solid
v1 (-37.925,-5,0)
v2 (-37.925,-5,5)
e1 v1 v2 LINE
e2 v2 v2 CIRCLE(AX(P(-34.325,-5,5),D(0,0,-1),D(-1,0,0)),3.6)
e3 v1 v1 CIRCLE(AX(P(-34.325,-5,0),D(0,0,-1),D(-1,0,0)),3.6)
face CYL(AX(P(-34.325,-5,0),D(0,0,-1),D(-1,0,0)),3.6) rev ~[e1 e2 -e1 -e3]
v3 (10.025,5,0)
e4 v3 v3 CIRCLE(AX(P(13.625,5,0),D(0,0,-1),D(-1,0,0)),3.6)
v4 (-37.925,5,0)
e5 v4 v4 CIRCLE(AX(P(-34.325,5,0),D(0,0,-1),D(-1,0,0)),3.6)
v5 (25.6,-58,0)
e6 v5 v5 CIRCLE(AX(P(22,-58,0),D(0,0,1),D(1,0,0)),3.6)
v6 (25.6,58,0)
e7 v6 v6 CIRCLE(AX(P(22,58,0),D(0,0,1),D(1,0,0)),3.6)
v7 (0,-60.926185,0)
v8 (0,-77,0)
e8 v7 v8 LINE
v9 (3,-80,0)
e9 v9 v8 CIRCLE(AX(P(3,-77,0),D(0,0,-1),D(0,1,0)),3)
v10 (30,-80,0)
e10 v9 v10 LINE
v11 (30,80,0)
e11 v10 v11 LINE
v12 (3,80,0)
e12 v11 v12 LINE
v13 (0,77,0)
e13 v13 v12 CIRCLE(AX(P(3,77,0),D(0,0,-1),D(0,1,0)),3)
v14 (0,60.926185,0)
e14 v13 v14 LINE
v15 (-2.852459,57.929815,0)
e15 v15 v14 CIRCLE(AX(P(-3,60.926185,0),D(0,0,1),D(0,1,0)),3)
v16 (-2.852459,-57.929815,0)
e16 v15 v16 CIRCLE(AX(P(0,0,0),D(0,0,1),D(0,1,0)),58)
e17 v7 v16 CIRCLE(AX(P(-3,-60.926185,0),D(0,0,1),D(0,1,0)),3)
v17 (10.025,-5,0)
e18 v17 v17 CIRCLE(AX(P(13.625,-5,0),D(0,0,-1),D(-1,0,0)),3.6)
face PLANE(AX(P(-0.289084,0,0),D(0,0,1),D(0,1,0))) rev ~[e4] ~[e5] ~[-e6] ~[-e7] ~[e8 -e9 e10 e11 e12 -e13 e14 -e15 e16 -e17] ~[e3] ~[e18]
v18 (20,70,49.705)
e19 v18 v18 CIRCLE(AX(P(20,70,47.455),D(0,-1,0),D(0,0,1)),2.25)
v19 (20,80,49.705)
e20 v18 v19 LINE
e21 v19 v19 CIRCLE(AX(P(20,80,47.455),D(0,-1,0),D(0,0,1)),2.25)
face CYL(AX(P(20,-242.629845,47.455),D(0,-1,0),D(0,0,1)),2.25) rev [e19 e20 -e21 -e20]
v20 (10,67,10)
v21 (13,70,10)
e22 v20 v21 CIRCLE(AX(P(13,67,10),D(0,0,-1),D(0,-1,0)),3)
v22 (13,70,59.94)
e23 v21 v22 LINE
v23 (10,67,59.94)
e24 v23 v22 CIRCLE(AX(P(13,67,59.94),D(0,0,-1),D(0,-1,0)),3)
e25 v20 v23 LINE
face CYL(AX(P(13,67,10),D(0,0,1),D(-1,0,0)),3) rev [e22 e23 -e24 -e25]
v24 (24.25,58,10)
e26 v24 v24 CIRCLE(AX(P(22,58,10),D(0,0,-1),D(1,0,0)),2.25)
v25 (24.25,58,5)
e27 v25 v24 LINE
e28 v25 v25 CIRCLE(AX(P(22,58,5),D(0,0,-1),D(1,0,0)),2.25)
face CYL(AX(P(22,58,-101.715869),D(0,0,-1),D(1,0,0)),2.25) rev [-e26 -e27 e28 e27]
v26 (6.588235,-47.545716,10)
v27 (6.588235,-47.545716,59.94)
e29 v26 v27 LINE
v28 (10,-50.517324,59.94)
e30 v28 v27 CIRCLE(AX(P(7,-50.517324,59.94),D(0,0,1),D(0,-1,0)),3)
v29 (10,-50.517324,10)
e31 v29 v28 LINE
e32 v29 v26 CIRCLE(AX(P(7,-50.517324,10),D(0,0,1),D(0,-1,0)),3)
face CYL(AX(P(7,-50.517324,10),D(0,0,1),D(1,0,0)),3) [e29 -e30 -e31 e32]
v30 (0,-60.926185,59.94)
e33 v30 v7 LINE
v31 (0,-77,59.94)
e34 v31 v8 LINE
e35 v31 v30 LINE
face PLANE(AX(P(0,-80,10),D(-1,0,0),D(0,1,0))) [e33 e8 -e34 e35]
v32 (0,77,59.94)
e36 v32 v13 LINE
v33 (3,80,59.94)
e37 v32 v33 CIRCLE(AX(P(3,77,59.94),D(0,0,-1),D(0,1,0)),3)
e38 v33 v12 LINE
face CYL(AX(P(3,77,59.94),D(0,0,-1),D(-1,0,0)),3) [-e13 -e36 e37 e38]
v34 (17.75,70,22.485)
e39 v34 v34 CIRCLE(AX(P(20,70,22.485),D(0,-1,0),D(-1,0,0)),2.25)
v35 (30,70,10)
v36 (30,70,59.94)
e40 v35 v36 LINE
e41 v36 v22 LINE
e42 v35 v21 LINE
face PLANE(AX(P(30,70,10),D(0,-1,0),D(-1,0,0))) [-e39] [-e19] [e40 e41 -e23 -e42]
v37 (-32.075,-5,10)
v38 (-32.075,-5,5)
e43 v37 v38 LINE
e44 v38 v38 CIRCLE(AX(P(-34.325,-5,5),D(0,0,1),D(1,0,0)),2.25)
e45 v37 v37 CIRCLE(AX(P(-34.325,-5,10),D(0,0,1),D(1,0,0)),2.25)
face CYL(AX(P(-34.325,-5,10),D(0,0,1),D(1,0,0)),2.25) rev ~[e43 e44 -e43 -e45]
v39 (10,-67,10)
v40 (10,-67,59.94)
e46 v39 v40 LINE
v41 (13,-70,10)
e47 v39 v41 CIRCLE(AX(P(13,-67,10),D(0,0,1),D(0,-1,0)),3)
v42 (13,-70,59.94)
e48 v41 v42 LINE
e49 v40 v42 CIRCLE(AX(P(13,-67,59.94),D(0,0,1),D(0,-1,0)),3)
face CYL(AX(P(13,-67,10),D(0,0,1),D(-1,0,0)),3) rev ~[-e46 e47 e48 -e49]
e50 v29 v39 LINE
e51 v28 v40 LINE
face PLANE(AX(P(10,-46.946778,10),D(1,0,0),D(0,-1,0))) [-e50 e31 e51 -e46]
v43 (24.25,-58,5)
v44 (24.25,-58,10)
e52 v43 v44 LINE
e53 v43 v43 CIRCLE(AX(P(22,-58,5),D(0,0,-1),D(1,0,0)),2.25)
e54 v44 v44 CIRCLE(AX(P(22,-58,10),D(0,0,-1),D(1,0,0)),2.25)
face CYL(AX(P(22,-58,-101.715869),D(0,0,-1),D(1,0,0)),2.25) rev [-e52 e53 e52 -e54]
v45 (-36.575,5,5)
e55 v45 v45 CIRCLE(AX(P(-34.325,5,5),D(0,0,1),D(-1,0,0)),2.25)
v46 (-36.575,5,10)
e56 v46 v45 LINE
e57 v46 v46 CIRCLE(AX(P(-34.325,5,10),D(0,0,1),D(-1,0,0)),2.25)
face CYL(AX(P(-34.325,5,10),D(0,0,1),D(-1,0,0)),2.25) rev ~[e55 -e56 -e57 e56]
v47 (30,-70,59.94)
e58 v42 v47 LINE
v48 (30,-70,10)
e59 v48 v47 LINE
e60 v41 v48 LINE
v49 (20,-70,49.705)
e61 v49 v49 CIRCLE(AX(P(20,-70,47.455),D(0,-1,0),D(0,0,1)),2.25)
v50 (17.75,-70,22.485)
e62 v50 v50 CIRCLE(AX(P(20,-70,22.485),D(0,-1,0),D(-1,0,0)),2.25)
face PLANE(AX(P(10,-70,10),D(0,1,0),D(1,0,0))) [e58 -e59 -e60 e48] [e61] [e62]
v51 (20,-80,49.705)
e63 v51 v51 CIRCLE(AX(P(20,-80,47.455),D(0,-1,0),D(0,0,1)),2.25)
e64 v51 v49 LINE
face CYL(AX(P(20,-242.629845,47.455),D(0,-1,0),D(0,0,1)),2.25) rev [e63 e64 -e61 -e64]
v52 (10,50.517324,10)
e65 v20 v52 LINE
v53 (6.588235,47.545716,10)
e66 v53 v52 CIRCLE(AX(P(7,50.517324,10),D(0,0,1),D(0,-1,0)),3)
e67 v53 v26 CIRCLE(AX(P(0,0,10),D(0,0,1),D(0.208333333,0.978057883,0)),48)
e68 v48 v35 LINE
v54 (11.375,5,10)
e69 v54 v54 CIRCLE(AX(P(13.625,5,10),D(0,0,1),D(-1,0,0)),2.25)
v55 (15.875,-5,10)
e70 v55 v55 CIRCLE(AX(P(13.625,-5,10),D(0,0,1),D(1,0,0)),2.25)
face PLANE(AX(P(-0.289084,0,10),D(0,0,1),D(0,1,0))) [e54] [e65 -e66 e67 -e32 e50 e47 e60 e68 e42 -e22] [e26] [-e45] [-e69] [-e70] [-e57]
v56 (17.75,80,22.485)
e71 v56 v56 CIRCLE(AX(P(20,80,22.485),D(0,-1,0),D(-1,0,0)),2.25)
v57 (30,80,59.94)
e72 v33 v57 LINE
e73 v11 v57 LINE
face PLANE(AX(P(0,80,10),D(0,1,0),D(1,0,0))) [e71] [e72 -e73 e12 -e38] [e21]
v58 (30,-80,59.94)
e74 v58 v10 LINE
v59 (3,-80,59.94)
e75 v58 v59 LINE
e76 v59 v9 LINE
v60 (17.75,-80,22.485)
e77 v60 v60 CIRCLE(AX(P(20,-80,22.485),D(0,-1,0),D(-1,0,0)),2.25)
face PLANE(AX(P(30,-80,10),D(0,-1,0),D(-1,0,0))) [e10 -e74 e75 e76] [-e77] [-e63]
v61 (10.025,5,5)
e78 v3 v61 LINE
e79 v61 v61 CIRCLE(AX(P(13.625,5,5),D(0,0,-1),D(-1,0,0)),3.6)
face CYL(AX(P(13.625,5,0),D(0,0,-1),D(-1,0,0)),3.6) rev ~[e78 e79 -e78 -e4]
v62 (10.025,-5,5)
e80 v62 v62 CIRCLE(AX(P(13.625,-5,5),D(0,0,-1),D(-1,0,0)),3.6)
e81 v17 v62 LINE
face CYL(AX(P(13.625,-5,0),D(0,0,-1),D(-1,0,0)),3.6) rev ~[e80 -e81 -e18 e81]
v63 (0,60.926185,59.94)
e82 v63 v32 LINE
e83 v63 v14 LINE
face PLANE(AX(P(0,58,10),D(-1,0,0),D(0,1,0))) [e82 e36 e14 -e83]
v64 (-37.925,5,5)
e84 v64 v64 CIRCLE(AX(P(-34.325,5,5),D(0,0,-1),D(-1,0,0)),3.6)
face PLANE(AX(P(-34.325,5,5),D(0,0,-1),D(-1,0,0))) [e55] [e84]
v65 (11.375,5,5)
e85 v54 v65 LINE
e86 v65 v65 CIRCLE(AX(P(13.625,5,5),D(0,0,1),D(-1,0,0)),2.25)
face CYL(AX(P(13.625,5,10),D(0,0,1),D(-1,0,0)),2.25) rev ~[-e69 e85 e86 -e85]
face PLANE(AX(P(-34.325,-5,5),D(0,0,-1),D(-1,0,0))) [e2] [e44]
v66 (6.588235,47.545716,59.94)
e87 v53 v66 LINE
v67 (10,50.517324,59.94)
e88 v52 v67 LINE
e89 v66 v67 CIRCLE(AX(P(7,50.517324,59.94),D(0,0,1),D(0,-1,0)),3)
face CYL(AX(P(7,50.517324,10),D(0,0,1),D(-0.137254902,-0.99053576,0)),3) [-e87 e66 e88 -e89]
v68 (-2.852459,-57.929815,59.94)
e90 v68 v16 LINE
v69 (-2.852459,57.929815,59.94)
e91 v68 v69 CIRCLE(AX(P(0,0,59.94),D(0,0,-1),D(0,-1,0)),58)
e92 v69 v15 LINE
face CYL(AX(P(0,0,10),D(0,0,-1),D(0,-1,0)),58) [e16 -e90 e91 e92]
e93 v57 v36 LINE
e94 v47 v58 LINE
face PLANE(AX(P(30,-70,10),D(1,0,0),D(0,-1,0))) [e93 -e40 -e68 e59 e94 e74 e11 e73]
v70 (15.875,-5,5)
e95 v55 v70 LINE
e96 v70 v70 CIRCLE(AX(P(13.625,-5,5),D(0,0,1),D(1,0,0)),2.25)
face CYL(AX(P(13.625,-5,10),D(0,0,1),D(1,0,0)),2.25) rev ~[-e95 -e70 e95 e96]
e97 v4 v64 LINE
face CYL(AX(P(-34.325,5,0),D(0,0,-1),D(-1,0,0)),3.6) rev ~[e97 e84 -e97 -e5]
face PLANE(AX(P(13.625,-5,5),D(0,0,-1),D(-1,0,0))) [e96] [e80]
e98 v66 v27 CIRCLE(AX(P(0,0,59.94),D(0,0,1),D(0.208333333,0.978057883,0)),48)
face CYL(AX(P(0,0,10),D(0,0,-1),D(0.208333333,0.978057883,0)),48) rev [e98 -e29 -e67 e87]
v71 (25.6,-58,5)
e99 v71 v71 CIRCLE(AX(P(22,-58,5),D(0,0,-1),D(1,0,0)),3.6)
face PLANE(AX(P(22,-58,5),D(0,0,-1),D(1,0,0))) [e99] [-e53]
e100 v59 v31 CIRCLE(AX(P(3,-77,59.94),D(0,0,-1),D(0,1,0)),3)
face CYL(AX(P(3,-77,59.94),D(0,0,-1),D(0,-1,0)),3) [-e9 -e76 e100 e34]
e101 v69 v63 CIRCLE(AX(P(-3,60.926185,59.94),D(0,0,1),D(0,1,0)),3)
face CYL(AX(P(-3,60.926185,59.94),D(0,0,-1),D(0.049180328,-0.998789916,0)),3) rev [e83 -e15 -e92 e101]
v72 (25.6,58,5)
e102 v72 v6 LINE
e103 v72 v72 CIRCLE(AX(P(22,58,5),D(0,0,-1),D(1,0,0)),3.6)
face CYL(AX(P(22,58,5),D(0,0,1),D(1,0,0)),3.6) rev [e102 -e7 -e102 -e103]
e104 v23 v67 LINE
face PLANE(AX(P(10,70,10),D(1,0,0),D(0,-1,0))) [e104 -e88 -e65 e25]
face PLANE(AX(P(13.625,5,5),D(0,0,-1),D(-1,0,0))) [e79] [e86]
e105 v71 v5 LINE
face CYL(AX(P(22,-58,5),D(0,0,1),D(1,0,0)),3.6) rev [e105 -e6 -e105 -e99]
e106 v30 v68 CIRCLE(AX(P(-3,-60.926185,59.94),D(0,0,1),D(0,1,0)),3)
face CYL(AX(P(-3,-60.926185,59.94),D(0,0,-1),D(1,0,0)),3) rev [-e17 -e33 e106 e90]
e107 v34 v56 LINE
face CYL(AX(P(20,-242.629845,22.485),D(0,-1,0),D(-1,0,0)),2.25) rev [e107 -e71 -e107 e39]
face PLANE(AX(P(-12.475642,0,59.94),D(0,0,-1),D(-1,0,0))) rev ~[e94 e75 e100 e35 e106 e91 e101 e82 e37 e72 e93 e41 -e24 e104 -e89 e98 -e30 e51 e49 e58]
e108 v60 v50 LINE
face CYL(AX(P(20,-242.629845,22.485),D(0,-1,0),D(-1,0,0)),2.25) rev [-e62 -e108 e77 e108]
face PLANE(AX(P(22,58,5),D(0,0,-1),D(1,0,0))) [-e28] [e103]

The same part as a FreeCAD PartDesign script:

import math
import FreeCAD as App
import Part
import Sketcher
from FreeCAD import Vector
Q = App.Units.Quantity


def edges_at(feature, points):
    """Names of the edges that pass closest to the given points."""
    edges = feature.Shape.Edges
    near = lambda p: min(range(len(edges)), key=lambda i: edges[i].distToShape(Part.Vertex(*p))[0])
    return sorted({f"Edge{near(p) + 1}" for p in points})

doc = App.newDocument("Part")
body = doc.addObject("PartDesign::Body", "Body")

sketch1 = body.newObject("Sketcher::SketchObject", "Sketch")
sketch1.AttachmentSupport = (doc.getObject("XY_Plane"), [""])
sketch1.MapMode = "FlatFace"
sketch1.addGeometry(Part.LineSegment(Vector(0, -58, 0), Vector(0, -80, 0)), False)
sketch1.addGeometry(Part.LineSegment(Vector(0, -80, 0), Vector(30, -80, 0)), False)
sketch1.addGeometry(Part.LineSegment(Vector(30, -80, 0), Vector(30, 80, 0)), False)
sketch1.addGeometry(Part.LineSegment(Vector(30, 80, 0), Vector(0, 80, 0)), False)
sketch1.addGeometry(Part.LineSegment(Vector(0, 80, 0), Vector(0, 58, 0)), False)
sketch1.addGeometry(Part.ArcOfCircle(Part.Circle(Vector(0, 0, 0), Vector(0, 0, 1), 58), math.radians(90), math.radians(270)), False)
sketch1.addConstraint(Sketcher.Constraint("Coincident", 0, 2, 1, 1))
sketch1.addConstraint(Sketcher.Constraint("Coincident", 1, 2, 2, 1))
sketch1.addConstraint(Sketcher.Constraint("Coincident", 2, 2, 3, 1))
sketch1.addConstraint(Sketcher.Constraint("Coincident", 3, 2, 4, 1))
sketch1.addConstraint(Sketcher.Constraint("Coincident", 4, 2, 5, 1))
sketch1.addConstraint(Sketcher.Constraint("Coincident", 5, 2, 0, 1))
sketch1.addConstraint(Sketcher.Constraint("Vertical", 0))
sketch1.addConstraint(Sketcher.Constraint("Horizontal", 1))
sketch1.addConstraint(Sketcher.Constraint("Vertical", 2))
sketch1.addConstraint(Sketcher.Constraint("Horizontal", 3))
sketch1.addConstraint(Sketcher.Constraint("Vertical", 4))
sketch1.addConstraint(Sketcher.Constraint("Coincident", 5, 3, -1, 1))
sketch1.addConstraint(Sketcher.Constraint("Symmetric", 0, 2, 3, 2, -1, 1))
sketch1.addConstraint(Sketcher.Constraint("PointOnObject", 0, 2, -2))
sketch1.addConstraint(Sketcher.Constraint("Radius", 5, Q("58 mm")))
sketch1.addConstraint(Sketcher.Constraint("DistanceX", 1, 1, 1, 2, Q("30 mm")))
sketch1.addConstraint(Sketcher.Constraint("DistanceY", 0, 2, 0, 1, Q("22 mm")))
pad1 = body.newObject("PartDesign::Pad", "Pad")
pad1.Profile = sketch1
pad1.Length = 10

sketch2 = body.newObject("Sketcher::SketchObject", "Sketch001")
sketch2.AttachmentSupport = (doc.getObject("XY_Plane"), [""])
sketch2.MapMode = "FlatFace"
sketch2.AttachmentOffset = App.Placement(Vector(0, 0, 10), App.Rotation())
sketch2.addGeometry(Part.Circle(Vector(13.6, -5, 0), Vector(0, 0, 1), 2.2), False)
sketch2.addGeometry(Part.Circle(Vector(-34.3, -5, 0), Vector(0, 0, 1), 2.2), False)
sketch2.addGeometry(Part.Circle(Vector(-34.3, 5, 0), Vector(0, 0, 1), 2.2), False)
sketch2.addGeometry(Part.Circle(Vector(13.6, 5, 0), Vector(0, 0, 1), 2.2), False)
sketch2.addConstraint(Sketcher.Constraint("Equal", 0, 1))
sketch2.addConstraint(Sketcher.Constraint("Equal", 1, 2))
sketch2.addConstraint(Sketcher.Constraint("Equal", 2, 3))
sketch2.addConstraint(Sketcher.Constraint("Symmetric", 1, 3, 2, 3, -1))
sketch2.addConstraint(Sketcher.Constraint("Symmetric", 0, 3, 3, 3, -1))
sketch2.addConstraint(Sketcher.Constraint("Horizontal", 0, 3, 1, 3))
sketch2.addConstraint(Sketcher.Constraint("Diameter", 0, Q("4.5 mm")))
sketch2.addConstraint(Sketcher.Constraint("DistanceY", 0, 3, -1, 1, Q("5 mm")))
sketch2.addConstraint(Sketcher.Constraint("DistanceX", 1, 3, 0, 3, Q("47.95 mm")))
sketch2.addConstraint(Sketcher.Constraint("DistanceX", -1, 1, 0, 3, Q("13.625 mm")))
pocket1 = body.newObject("PartDesign::Pocket", "Pocket")
pocket1.Profile = sketch2
pocket1.Type = "ThroughAll"

sketch3 = body.newObject("Sketcher::SketchObject", "Sketch002")
sketch3.AttachmentSupport = (doc.getObject("XY_Plane"), [""])
sketch3.MapMode = "FlatFace"
sketch3.addGeometry(Part.Circle(Vector(-34.3, 5, 0), Vector(0, 0, 1), 3.6), False)
sketch3.addGeometry(Part.Circle(Vector(-34.3, -5, 0), Vector(0, 0, 1), 3.6), False)
sketch3.addGeometry(Part.Circle(Vector(13.6, -5, 0), Vector(0, 0, 1), 3.6), False)
sketch3.addGeometry(Part.Circle(Vector(13.6, 5, 0), Vector(0, 0, 1), 3.6), False)
sketch3.addConstraint(Sketcher.Constraint("Equal", 0, 1))
sketch3.addConstraint(Sketcher.Constraint("Equal", 1, 2))
sketch3.addConstraint(Sketcher.Constraint("Equal", 2, 3))
sketch3.addConstraint(Sketcher.Constraint("Symmetric", 0, 3, 1, 3, -1))
sketch3.addConstraint(Sketcher.Constraint("Symmetric", 2, 3, 3, 3, -1))
sketch3.addConstraint(Sketcher.Constraint("Horizontal", 1, 3, 2, 3))
sketch3.addConstraint(Sketcher.Constraint("Diameter", 0, Q("7.2 mm")))
sketch3.addConstraint(Sketcher.Constraint("DistanceY", -1, 1, 0, 3, Q("5 mm")))
sketch3.addConstraint(Sketcher.Constraint("DistanceX", 1, 3, 2, 3, Q("47.95 mm")))
sketch3.addConstraint(Sketcher.Constraint("DistanceX", 0, 3, -1, 1, Q("34.325 mm")))
pocket2 = body.newObject("PartDesign::Pocket", "Pocket001")
pocket2.Profile = sketch3
pocket2.Length = 5
pocket2.Reversed = True

sketch4 = body.newObject("Sketcher::SketchObject", "Sketch003")
sketch4.AttachmentSupport = (doc.getObject("XY_Plane"), [""])
sketch4.MapMode = "FlatFace"
sketch4.AttachmentOffset = App.Placement(Vector(0, 0, 10), App.Rotation())
sketch4.addGeometry(Part.LineSegment(Vector(10, -70, 0), Vector(10, -47, 0)), False)
sketch4.addGeometry(Part.ArcOfCircle(Part.Circle(Vector(0, 0, 0), Vector(0, 0, 1), 48), math.radians(78), math.radians(282)), False)
sketch4.addGeometry(Part.LineSegment(Vector(10, 47, 0), Vector(10, 70, 0)), False)
sketch4.addGeometry(Part.LineSegment(Vector(10, 70, 0), Vector(30, 70, 0)), False)
sketch4.addGeometry(Part.LineSegment(Vector(30, 70, 0), Vector(30, 80, 0)), False)
sketch4.addGeometry(Part.LineSegment(Vector(30, 80, 0), Vector(0, 80, 0)), False)
sketch4.addGeometry(Part.LineSegment(Vector(0, 80, 0), Vector(0, 58, 0)), False)
sketch4.addGeometry(Part.ArcOfCircle(Part.Circle(Vector(0, 0, 0), Vector(0, 0, 1), 58), math.radians(90), math.radians(270)), False)
sketch4.addGeometry(Part.LineSegment(Vector(0, -58, 0), Vector(0, -80, 0)), False)
sketch4.addGeometry(Part.LineSegment(Vector(0, -80, 0), Vector(30, -80, 0)), False)
sketch4.addGeometry(Part.LineSegment(Vector(30, -80, 0), Vector(30, -70, 0)), False)
sketch4.addGeometry(Part.LineSegment(Vector(30, -70, 0), Vector(10, -70, 0)), False)
sketch4.addConstraint(Sketcher.Constraint("Coincident", 0, 2, 1, 2))
sketch4.addConstraint(Sketcher.Constraint("Coincident", 1, 1, 2, 1))
sketch4.addConstraint(Sketcher.Constraint("Coincident", 2, 2, 3, 1))
sketch4.addConstraint(Sketcher.Constraint("Coincident", 3, 2, 4, 1))
sketch4.addConstraint(Sketcher.Constraint("Coincident", 4, 2, 5, 1))
sketch4.addConstraint(Sketcher.Constraint("Coincident", 5, 2, 6, 1))
sketch4.addConstraint(Sketcher.Constraint("Coincident", 6, 2, 7, 1))
sketch4.addConstraint(Sketcher.Constraint("Coincident", 7, 2, 8, 1))
sketch4.addConstraint(Sketcher.Constraint("Coincident", 8, 2, 9, 1))
sketch4.addConstraint(Sketcher.Constraint("Coincident", 9, 2, 10, 1))
sketch4.addConstraint(Sketcher.Constraint("Coincident", 10, 2, 11, 1))
sketch4.addConstraint(Sketcher.Constraint("Coincident", 11, 2, 0, 1))
sketch4.addConstraint(Sketcher.Constraint("Vertical", 0))
sketch4.addConstraint(Sketcher.Constraint("Vertical", 2))
sketch4.addConstraint(Sketcher.Constraint("Horizontal", 3))
sketch4.addConstraint(Sketcher.Constraint("Vertical", 4))
sketch4.addConstraint(Sketcher.Constraint("Horizontal", 5))
sketch4.addConstraint(Sketcher.Constraint("Vertical", 6))
sketch4.addConstraint(Sketcher.Constraint("Vertical", 8))
sketch4.addConstraint(Sketcher.Constraint("Horizontal", 9))
sketch4.addConstraint(Sketcher.Constraint("Vertical", 10))
sketch4.addConstraint(Sketcher.Constraint("Horizontal", 11))
sketch4.addConstraint(Sketcher.Constraint("Coincident", 1, 3, -1, 1))
sketch4.addConstraint(Sketcher.Constraint("Coincident", 7, 3, -1, 1))
sketch4.addConstraint(Sketcher.Constraint("Symmetric", 5, 2, 8, 2, -1, 1))
sketch4.addConstraint(Sketcher.Constraint("Symmetric", 3, 2, 10, 2, -1))
sketch4.addConstraint(Sketcher.Constraint("PointOnObject", 5, 2, -2))
sketch4.addConstraint(Sketcher.Constraint("Vertical", 0, 2, 1, 1))
sketch4.addConstraint(Sketcher.Constraint("Radius", 1, Q("48 mm")))
sketch4.addConstraint(Sketcher.Constraint("Radius", 7, Q("58 mm")))
sketch4.addConstraint(Sketcher.Constraint("DistanceX", 3, 1, 3, 2, Q("20 mm")))
sketch4.addConstraint(Sketcher.Constraint("DistanceX", 5, 2, 5, 1, Q("30 mm")))
sketch4.addConstraint(Sketcher.Constraint("DistanceY", 4, 1, 4, 2, Q("10 mm")))
sketch4.addConstraint(Sketcher.Constraint("DistanceY", 6, 2, 6, 1, Q("22 mm")))
pad2 = body.newObject("PartDesign::Pad", "Pad001")
pad2.Profile = sketch4
pad2.Length = 49.94

sketch5 = body.newObject("Sketcher::SketchObject", "Sketch004")
sketch5.AttachmentSupport = (doc.getObject("XZ_Plane"), [""])
sketch5.MapMode = "FlatFace"
sketch5.AttachmentOffset = App.Placement(Vector(0, 0, 70), App.Rotation())
sketch5.addGeometry(Part.Circle(Vector(20, 47.5, 0), Vector(0, 0, 1), 2.2), False)
sketch5.addGeometry(Part.Circle(Vector(20, 22.5, 0), Vector(0, 0, 1), 2.2), False)
sketch5.addConstraint(Sketcher.Constraint("Equal", 0, 1))
sketch5.addConstraint(Sketcher.Constraint("Vertical", 0, 3, 1, 3))
sketch5.addConstraint(Sketcher.Constraint("Diameter", 0, Q("4.5 mm")))
sketch5.addConstraint(Sketcher.Constraint("DistanceX", -1, 1, 0, 3, Q("20 mm")))
sketch5.addConstraint(Sketcher.Constraint("DistanceY", 1, 3, 0, 3, Q("24.97 mm")))
sketch5.addConstraint(Sketcher.Constraint("DistanceY", -1, 1, 0, 3, Q("47.455 mm")))
pocket3 = body.newObject("PartDesign::Pocket", "Pocket002")
pocket3.Profile = sketch5
pocket3.Type = "ThroughAll"
pocket3.Midplane = True

sketch6 = body.newObject("Sketcher::SketchObject", "Sketch005")
sketch6.AttachmentSupport = (doc.getObject("XY_Plane"), [""])
sketch6.MapMode = "FlatFace"
sketch6.AttachmentOffset = App.Placement(Vector(0, 0, 10), App.Rotation())
sketch6.addGeometry(Part.Circle(Vector(22, -58, 0), Vector(0, 0, 1), 2.2), False)
sketch6.addGeometry(Part.Circle(Vector(22, 58, 0), Vector(0, 0, 1), 2.2), False)
sketch6.addConstraint(Sketcher.Constraint("Equal", 0, 1))
sketch6.addConstraint(Sketcher.Constraint("Symmetric", 0, 3, 1, 3, -1))
sketch6.addConstraint(Sketcher.Constraint("Diameter", 0, Q("4.5 mm")))
sketch6.addConstraint(Sketcher.Constraint("DistanceX", -1, 1, 0, 3, Q("22 mm")))
sketch6.addConstraint(Sketcher.Constraint("DistanceY", 0, 3, -1, 1, Q("58 mm")))
pocket4 = body.newObject("PartDesign::Pocket", "Pocket003")
pocket4.Profile = sketch6
pocket4.Type = "ThroughAll"
pocket4.Midplane = True
doc.recompute()

fillet = body.newObject("PartDesign::Fillet", "Fillet")
fillet.Base = (pocket4, edges_at(pocket4, [
    (0, 80, 29.97),
    (0, -80, 29.97),
    (0, -58, 29.97),
    (0, 58, 29.97),
    (10, -70, 34.97),
    (10, -46.947, 34.97),
    (10, 46.947, 34.97),
    (10, 70, 34.97),
]))
fillet.Radius = 3

sketch7 = body.newObject("Sketcher::SketchObject", "Sketch006")
sketch7.AttachmentSupport = (doc.getObject("XY_Plane"), [""])
sketch7.MapMode = "FlatFace"
sketch7.addGeometry(Part.Circle(Vector(22, -58, 0), Vector(0, 0, 1), 3.6), False)
sketch7.addGeometry(Part.Circle(Vector(22, 58, 0), Vector(0, 0, 1), 3.6), False)
sketch7.addConstraint(Sketcher.Constraint("Equal", 0, 1))
sketch7.addConstraint(Sketcher.Constraint("Symmetric", 0, 3, 1, 3, -1))
sketch7.addConstraint(Sketcher.Constraint("Diameter", 0, Q("7.2 mm")))
sketch7.addConstraint(Sketcher.Constraint("DistanceX", -1, 1, 0, 3, Q("22 mm")))
sketch7.addConstraint(Sketcher.Constraint("DistanceY", 0, 3, -1, 1, Q("58 mm")))
pocket5 = body.newObject("PartDesign::Pocket", "Pocket004")
pocket5.Profile = sketch7
pocket5.Type = "TwoLengths"
pocket5.Length = 116.571638
pocket5.Length2 = 5

doc.recompute()
